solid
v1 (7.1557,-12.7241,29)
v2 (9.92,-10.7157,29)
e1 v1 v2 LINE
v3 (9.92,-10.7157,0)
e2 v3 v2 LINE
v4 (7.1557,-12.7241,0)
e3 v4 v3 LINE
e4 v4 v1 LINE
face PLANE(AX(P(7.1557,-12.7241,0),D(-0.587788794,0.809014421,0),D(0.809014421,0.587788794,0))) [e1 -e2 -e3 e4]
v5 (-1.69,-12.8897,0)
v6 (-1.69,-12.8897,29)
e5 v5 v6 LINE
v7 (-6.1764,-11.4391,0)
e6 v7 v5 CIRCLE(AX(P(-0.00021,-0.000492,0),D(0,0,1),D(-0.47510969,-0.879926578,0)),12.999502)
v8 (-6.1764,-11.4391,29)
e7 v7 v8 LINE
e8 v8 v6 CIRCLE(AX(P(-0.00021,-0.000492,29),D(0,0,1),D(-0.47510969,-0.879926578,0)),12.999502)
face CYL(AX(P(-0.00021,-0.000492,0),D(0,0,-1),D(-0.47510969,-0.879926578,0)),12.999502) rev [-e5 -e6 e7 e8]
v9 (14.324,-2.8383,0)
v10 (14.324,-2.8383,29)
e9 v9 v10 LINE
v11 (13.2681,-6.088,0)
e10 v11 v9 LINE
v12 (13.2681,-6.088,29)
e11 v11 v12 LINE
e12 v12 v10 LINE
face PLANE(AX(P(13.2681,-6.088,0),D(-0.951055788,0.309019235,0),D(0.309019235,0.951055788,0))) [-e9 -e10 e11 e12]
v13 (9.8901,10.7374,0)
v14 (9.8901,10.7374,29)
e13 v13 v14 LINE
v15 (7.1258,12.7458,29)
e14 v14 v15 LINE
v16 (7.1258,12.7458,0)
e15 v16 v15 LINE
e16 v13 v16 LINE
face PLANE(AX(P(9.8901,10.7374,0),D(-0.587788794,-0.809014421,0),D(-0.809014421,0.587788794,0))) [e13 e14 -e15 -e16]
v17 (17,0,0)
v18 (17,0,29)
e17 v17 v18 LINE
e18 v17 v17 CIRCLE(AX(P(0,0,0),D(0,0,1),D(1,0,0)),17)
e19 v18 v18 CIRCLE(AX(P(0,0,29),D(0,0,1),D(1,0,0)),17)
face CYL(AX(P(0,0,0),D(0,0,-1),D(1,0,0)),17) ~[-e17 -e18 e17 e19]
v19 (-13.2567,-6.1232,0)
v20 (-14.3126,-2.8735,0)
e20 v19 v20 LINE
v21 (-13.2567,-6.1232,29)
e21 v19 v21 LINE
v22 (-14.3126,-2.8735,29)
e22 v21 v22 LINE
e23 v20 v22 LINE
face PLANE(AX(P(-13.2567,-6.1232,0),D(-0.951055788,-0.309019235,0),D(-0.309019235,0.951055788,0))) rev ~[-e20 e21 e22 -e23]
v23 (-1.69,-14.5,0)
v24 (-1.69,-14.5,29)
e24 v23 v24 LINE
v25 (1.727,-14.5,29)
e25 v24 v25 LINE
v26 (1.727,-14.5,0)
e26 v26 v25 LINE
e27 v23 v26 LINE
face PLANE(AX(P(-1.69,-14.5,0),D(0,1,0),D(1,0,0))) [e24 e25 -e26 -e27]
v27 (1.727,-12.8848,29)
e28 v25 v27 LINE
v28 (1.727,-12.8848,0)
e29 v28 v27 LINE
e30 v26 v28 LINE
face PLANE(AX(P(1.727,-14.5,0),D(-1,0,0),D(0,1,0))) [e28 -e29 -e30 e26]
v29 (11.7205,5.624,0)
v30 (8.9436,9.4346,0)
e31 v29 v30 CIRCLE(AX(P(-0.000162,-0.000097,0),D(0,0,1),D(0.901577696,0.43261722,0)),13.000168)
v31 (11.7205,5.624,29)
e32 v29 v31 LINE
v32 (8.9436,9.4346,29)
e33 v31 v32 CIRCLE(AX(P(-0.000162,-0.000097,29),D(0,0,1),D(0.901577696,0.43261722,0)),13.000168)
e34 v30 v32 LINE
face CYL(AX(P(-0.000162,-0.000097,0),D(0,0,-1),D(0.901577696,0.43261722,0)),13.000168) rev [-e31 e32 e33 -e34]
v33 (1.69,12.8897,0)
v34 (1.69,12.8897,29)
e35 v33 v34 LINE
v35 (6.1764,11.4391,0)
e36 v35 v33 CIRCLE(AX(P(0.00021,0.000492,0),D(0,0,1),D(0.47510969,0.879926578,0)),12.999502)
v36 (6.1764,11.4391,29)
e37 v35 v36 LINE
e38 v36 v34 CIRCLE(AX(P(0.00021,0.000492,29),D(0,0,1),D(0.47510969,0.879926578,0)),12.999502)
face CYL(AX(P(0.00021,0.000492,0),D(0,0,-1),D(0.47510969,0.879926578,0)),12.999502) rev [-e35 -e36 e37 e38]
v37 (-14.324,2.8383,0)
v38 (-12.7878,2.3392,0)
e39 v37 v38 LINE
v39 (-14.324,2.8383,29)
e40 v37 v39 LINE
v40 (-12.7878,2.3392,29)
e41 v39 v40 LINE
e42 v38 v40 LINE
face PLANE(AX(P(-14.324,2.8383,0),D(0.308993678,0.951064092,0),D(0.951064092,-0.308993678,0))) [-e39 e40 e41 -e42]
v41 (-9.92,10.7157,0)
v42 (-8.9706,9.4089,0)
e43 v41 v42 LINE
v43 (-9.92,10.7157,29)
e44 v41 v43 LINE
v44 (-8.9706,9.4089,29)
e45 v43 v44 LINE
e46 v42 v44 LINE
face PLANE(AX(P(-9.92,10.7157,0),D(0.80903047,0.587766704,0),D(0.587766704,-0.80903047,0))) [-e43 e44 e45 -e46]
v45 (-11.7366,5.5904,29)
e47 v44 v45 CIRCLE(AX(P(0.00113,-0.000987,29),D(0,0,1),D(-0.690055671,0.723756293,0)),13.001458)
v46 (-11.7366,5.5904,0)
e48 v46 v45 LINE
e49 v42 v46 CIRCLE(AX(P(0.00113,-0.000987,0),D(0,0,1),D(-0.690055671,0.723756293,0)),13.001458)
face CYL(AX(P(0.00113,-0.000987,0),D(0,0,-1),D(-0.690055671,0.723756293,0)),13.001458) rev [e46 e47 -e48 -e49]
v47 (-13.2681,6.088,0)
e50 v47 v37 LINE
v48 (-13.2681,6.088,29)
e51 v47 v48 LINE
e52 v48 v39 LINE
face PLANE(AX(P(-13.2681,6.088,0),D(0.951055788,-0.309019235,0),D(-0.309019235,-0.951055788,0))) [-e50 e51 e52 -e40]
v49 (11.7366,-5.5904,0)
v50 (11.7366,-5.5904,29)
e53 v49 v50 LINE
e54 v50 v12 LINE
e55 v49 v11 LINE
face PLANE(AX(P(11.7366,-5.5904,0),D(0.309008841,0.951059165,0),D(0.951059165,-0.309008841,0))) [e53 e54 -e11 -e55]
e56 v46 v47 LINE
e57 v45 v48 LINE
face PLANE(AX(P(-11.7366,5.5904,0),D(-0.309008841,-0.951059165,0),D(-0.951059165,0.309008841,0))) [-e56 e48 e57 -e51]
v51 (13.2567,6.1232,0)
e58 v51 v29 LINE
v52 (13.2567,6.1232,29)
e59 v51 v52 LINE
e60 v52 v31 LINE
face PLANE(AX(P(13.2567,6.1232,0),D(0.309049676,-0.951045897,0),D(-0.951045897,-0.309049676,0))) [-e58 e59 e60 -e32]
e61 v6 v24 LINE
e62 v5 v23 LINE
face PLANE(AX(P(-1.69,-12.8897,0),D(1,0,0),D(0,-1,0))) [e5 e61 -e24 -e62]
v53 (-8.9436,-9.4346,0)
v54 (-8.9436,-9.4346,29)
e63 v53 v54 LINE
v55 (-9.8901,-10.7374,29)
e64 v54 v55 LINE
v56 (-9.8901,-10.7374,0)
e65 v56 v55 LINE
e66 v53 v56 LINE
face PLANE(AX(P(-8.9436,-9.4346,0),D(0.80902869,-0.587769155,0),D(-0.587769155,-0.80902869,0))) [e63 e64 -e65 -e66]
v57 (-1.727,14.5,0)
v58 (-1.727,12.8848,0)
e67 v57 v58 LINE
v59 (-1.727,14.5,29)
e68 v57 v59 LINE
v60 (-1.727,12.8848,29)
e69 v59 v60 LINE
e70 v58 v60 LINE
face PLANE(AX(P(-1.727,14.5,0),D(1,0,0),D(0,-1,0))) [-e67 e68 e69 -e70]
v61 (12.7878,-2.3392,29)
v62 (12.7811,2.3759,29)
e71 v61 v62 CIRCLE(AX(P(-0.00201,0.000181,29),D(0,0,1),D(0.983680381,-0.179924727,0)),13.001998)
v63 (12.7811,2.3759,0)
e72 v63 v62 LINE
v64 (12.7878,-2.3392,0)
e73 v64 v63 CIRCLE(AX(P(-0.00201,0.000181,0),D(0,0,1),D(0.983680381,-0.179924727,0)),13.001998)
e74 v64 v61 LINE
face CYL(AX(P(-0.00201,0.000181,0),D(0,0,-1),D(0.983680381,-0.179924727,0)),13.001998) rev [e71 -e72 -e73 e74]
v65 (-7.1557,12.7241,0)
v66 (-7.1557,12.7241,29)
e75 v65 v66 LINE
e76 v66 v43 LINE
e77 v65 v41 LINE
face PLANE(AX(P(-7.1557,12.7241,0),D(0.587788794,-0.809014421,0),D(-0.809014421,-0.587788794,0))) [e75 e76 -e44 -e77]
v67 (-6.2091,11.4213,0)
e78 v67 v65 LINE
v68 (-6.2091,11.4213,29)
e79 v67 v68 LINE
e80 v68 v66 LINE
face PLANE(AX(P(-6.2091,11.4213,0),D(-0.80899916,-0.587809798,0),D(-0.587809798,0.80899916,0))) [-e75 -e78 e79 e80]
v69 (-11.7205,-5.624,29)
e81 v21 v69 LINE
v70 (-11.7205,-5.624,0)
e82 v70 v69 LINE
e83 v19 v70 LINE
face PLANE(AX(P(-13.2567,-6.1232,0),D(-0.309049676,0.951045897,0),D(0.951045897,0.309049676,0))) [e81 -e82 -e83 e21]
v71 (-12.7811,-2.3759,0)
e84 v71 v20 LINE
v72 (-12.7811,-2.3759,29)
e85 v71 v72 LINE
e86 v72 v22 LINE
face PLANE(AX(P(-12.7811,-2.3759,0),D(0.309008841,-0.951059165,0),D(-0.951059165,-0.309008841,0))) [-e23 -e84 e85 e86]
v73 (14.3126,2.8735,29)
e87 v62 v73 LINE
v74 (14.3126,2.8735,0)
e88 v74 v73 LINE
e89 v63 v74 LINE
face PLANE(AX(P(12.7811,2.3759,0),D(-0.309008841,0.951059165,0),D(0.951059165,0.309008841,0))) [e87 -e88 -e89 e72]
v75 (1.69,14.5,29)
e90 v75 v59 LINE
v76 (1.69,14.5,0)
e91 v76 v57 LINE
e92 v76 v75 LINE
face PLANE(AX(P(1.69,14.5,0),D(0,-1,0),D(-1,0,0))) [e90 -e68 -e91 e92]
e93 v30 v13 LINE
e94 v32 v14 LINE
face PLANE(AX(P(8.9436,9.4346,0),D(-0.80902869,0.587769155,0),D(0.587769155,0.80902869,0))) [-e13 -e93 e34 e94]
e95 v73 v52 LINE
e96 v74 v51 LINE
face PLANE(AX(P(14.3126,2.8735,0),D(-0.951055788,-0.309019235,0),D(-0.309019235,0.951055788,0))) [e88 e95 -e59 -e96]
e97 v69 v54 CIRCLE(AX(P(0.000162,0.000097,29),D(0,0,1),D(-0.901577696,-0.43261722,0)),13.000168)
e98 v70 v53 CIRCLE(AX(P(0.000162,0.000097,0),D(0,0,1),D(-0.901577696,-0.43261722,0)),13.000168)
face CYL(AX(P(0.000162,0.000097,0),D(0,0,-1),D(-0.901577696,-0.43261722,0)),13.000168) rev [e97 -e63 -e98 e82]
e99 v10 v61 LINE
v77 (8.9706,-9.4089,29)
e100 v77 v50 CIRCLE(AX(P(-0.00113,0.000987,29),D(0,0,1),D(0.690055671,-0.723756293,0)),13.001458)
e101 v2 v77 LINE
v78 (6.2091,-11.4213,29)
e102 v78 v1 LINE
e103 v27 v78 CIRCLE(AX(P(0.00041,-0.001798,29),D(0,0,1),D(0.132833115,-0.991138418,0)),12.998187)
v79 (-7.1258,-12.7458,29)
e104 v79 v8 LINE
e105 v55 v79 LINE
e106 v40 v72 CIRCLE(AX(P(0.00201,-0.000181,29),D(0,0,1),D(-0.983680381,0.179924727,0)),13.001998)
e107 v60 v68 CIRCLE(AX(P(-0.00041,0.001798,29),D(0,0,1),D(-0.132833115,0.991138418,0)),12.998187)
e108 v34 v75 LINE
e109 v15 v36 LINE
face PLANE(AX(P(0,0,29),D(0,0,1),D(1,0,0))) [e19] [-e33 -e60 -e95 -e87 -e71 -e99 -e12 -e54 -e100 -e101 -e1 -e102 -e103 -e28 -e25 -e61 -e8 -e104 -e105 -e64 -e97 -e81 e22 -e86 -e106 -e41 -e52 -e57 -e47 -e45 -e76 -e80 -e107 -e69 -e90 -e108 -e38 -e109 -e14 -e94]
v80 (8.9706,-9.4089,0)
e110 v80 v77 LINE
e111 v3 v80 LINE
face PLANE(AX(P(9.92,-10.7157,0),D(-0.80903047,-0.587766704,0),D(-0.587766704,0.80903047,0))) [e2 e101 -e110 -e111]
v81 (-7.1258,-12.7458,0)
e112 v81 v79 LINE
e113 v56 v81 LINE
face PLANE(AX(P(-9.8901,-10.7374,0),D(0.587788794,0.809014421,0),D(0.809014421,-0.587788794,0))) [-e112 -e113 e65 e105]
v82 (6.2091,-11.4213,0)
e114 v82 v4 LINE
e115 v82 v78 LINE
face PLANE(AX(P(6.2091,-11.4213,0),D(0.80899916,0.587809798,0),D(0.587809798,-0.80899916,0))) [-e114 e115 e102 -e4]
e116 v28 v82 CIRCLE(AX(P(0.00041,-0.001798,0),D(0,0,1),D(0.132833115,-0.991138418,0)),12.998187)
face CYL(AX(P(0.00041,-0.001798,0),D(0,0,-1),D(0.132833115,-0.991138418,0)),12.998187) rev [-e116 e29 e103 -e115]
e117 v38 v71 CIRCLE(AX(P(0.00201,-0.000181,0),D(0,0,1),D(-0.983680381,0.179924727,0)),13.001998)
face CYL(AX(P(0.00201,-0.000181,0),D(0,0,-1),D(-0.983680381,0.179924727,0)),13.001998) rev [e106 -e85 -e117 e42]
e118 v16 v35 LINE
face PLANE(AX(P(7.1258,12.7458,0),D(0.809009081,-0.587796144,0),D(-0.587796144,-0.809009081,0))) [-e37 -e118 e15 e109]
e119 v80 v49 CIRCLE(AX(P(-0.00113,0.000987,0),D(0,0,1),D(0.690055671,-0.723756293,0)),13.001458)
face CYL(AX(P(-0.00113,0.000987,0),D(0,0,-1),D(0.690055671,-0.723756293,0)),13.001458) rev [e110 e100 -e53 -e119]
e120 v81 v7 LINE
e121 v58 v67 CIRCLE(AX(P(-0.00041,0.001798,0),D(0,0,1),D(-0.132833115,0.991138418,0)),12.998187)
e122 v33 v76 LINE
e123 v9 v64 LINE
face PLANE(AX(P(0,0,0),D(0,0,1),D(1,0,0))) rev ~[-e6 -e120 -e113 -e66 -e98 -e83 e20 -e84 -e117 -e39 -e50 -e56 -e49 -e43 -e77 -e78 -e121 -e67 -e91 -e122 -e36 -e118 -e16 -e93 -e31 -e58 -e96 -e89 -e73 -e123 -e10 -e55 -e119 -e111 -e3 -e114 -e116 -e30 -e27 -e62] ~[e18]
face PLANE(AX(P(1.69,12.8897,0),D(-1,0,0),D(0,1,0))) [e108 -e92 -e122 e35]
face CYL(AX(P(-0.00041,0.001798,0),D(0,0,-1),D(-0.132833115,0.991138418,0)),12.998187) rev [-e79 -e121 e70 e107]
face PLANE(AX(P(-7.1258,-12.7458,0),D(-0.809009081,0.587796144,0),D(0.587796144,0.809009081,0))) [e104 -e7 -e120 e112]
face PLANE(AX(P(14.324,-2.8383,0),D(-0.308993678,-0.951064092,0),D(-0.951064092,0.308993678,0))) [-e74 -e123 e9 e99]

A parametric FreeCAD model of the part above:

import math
import FreeCAD as App
import Part
import Sketcher

V = App.Vector
Q = App.Units.Quantity

doc = App.newDocument("Part")
body = doc.addObject("PartDesign::Body", "Body")

# Sketch on XY plane
sketch1 = body.newObject("Sketcher::SketchObject", "Sketch")
sketch1.AttachmentSupport = (doc.getObject("XY_Plane"), [""])
sketch1.MapMode = "FlatFace"
sketch1.addGeometry(Part.Circle(V(0, 0, 0), V(0, 0, 1), 17), False)
sketch1.addGeometry(Part.ArcOfCircle(Part.Circle(V(0.00201, -0.000181, 0), V(0, 0, 1), 13.001998), math.radians(169.634625), math.radians(190.528206)), False)
sketch1.addGeometry(Part.LineSegment(V(-12.7878, 2.3392, 0), V(-14.324, 2.8383, 0)), False)
sketch1.addGeometry(Part.LineSegment(V(-14.324, 2.8383, 0), V(-13.2681, 6.088, 0)), False)
sketch1.addGeometry(Part.LineSegment(V(-13.2681, 6.088, 0), V(-11.7366, 5.5904, 0)), False)
sketch1.addGeometry(Part.ArcOfCircle(Part.Circle(V(0.00113, -0.000987, 0), V(0, 0, 1), 13.001458), math.radians(133.634516), math.radians(154.528729)), False)
sketch1.addGeometry(Part.LineSegment(V(-8.9706, 9.4089, 0), V(-9.92, 10.7157, 0)), False)
sketch1.addGeometry(Part.LineSegment(V(-9.92, 10.7157, 0), V(-7.1557, 12.7241, 0)), False)
sketch1.addGeometry(Part.LineSegment(V(-7.1557, 12.7241, 0), V(-6.2091, 11.4213, 0)), False)
sketch1.addGeometry(Part.ArcOfCircle(Part.Circle(V(-0.00041, 0.001798, 0), V(0, 0, 1), 12.998187), math.radians(97.633338), math.radians(118.532563)), False)
sketch1.addGeometry(Part.LineSegment(V(-1.727, 12.8848, 0), V(-1.727, 14.5, 0)), False)
sketch1.addGeometry(Part.LineSegment(V(-1.727, 14.5, 0), V(1.69, 14.5, 0)), False)
sketch1.addGeometry(Part.LineSegment(V(1.69, 14.5, 0), V(1.69, 12.8897, 0)), False)
sketch1.addGeometry(Part.ArcOfCircle(Part.Circle(V(0, 0, 0), V(0, 0, 1), 12.999964), math.radians(61.633723), math.radians(82.530418)), False)
sketch1.addGeometry(Part.LineSegment(V(6.1764, 11.4391, 0), V(7.1258, 12.7458, 0)), False)
sketch1.addGeometry(Part.LineSegment(V(7.1258, 12.7458, 0), V(9.8901, 10.7374, 0)), False)
sketch1.addGeometry(Part.LineSegment(V(9.8901, 10.7374, 0), V(8.9436, 9.4346, 0)), False)
sketch1.addGeometry(Part.ArcOfCircle(Part.Circle(V(0, 0, 0), V(0, 0, 1), 13.000036), math.radians(25.633695), math.radians(46.530375)), False)
sketch1.addGeometry(Part.LineSegment(V(11.7205, 5.624, 0), V(13.2567, 6.1232, 0)), False)
sketch1.addGeometry(Part.LineSegment(V(13.2567, 6.1232, 0), V(14.3126, 2.8735, 0)), False)
sketch1.addGeometry(Part.LineSegment(V(14.3126, 2.8735, 0), V(12.7811, 2.3759, 0)), False)
sketch1.addGeometry(Part.ArcOfCircle(Part.Circle(V(-0.00201, 0.000181, 0), V(0, 0, 1), 13.001998), math.radians(-10.365375), math.radians(10.528206)), False)
sketch1.addGeometry(Part.LineSegment(V(12.7878, -2.3392, 0), V(14.324, -2.8383, 0)), False)
sketch1.addGeometry(Part.LineSegment(V(14.324, -2.8383, 0), V(13.2681, -6.088, 0)), False)
sketch1.addGeometry(Part.LineSegment(V(13.2681, -6.088, 0), V(11.7366, -5.5904, 0)), False)
sketch1.addGeometry(Part.ArcOfCircle(Part.Circle(V(-0.00113, 0.000987, 0), V(0, 0, 1), 13.001458), math.radians(-46.365484), math.radians(-25.471271)), False)
sketch1.addGeometry(Part.LineSegment(V(8.9706, -9.4089, 0), V(9.92, -10.7157, 0)), False)
sketch1.addGeometry(Part.LineSegment(V(9.92, -10.7157, 0), V(7.1557, -12.7241, 0)), False)
sketch1.addGeometry(Part.LineSegment(V(7.1557, -12.7241, 0), V(6.2091, -11.4213, 0)), False)
sketch1.addGeometry(Part.ArcOfCircle(Part.Circle(V(0.00041, -0.001798, 0), V(0, 0, 1), 12.998187), math.radians(-82.366662), math.radians(-61.467437)), False)
sketch1.addGeometry(Part.LineSegment(V(1.727, -12.8848, 0), V(1.727, -14.5, 0)), False)
sketch1.addGeometry(Part.LineSegment(V(1.727, -14.5, 0), V(-1.69, -14.5, 0)), False)
sketch1.addGeometry(Part.LineSegment(V(-1.69, -14.5, 0), V(-1.69, -12.8897, 0)), False)
sketch1.addGeometry(Part.ArcOfCircle(Part.Circle(V(0, 0, 0), V(0, 0, 1), 12.999964), math.radians(-118.366277), math.radians(-97.469582)), False)
sketch1.addGeometry(Part.LineSegment(V(-6.1764, -11.4391, 0), V(-7.1258, -12.7458, 0)), False)
sketch1.addGeometry(Part.LineSegment(V(-7.1258, -12.7458, 0), V(-9.8901, -10.7374, 0)), False)
sketch1.addGeometry(Part.LineSegment(V(-9.8901, -10.7374, 0), V(-8.9436, -9.4346, 0)), False)
sketch1.addGeometry(Part.ArcOfCircle(Part.Circle(V(0, 0, 0), V(0, 0, 1), 13.000036), math.radians(-154.366305), math.radians(-133.469625)), False)
sketch1.addGeometry(Part.LineSegment(V(-11.7205, -5.624, 0), V(-13.2567, -6.1232, 0)), False)
sketch1.addGeometry(Part.LineSegment(V(-13.2567, -6.1232, 0), V(-14.3126, -2.8735, 0)), False)
sketch1.addGeometry(Part.LineSegment(V(-14.3126, -2.8735, 0), V(-12.7811, -2.3759, 0)), False)
sketch1.addConstraint(Sketcher.Constraint("Coincident", 1, 1, 2, 1))
sketch1.addConstraint(Sketcher.Constraint("Coincident", 2, 2, 3, 1))
sketch1.addConstraint(Sketcher.Constraint("Coincident", 3, 2, 4, 1))
sketch1.addConstraint(Sketcher.Constraint("Coincident", 4, 2, 5, 2))
sketch1.addConstraint(Sketcher.Constraint("Coincident", 5, 1, 6, 1))
sketch1.addConstraint(Sketcher.Constraint("Coincident", 6, 2, 7, 1))
sketch1.addConstraint(Sketcher.Constraint("Coincident", 7, 2, 8, 1))
sketch1.addConstraint(Sketcher.Constraint("Coincident", 8, 2, 9, 2))
sketch1.addConstraint(Sketcher.Constraint("Coincident", 9, 1, 10, 1))
sketch1.addConstraint(Sketcher.Constraint("Coincident", 10, 2, 11, 1))
sketch1.addConstraint(Sketcher.Constraint("Coincident", 11, 2, 12, 1))
sketch1.addConstraint(Sketcher.Constraint("Coincident", 12, 2, 13, 2))
sketch1.addConstraint(Sketcher.Constraint("Coincident", 13, 1, 14, 1))
sketch1.addConstraint(Sketcher.Constraint("Coincident", 14, 2, 15, 1))
sketch1.addConstraint(Sketcher.Constraint("Coincident", 15, 2, 16, 1))
sketch1.addConstraint(Sketcher.Constraint("Coincident", 16, 2, 17, 2))
sketch1.addConstraint(Sketcher.Constraint("Coincident", 17, 1, 18, 1))
sketch1.addConstraint(Sketcher.Constraint("Coincident", 18, 2, 19, 1))
sketch1.addConstraint(Sketcher.Constraint("Coincident", 19, 2, 20, 1))
sketch1.addConstraint(Sketcher.Constraint("Coincident", 20, 2, 21, 2))
sketch1.addConstraint(Sketcher.Constraint("Coincident", 21, 1, 22, 1))
sketch1.addConstraint(Sketcher.Constraint("Coincident", 22, 2, 23, 1))
sketch1.addConstraint(Sketcher.Constraint("Coincident", 23, 2, 24, 1))
sketch1.addConstraint(Sketcher.Constraint("Coincident", 24, 2, 25, 2))
sketch1.addConstraint(Sketcher.Constraint("Coincident", 25, 1, 26, 1))
sketch1.addConstraint(Sketcher.Constraint("Coincident", 26, 2, 27, 1))
sketch1.addConstraint(Sketcher.Constraint("Coincident", 27, 2, 28, 1))
sketch1.addConstraint(Sketcher.Constraint("Coincident", 28, 2, 29, 2))
sketch1.addConstraint(Sketcher.Constraint("Coincident", 29, 1, 30, 1))
sketch1.addConstraint(Sketcher.Constraint("Coincident", 30, 2, 31, 1))
sketch1.addConstraint(Sketcher.Constraint("Coincident", 31, 2, 32, 1))
sketch1.addConstraint(Sketcher.Constraint("Coincident", 32, 2, 33, 2))
sketch1.addConstraint(Sketcher.Constraint("Coincident", 33, 1, 34, 1))
sketch1.addConstraint(Sketcher.Constraint("Coincident", 34, 2, 35, 1))
sketch1.addConstraint(Sketcher.Constraint("Coincident", 35, 2, 36, 1))
sketch1.addConstraint(Sketcher.Constraint("Coincident", 36, 2, 37, 2))
sketch1.addConstraint(Sketcher.Constraint("Coincident", 37, 1, 38, 1))
sketch1.addConstraint(Sketcher.Constraint("Coincident", 38, 2, 39, 1))
sketch1.addConstraint(Sketcher.Constraint("Coincident", 39, 2, 40, 1))
sketch1.addConstraint(Sketcher.Constraint("Coincident", 40, 2, 1, 2))
sketch1.addConstraint(Sketcher.Constraint("Vertical", 10))
sketch1.addConstraint(Sketcher.Constraint("Horizontal", 11))
sketch1.addConstraint(Sketcher.Constraint("Vertical", 12))
sketch1.addConstraint(Sketcher.Constraint("Vertical", 30))
sketch1.addConstraint(Sketcher.Constraint("Horizontal", 31))
sketch1.addConstraint(Sketcher.Constraint("Vertical", 32))
sketch1.addConstraint(Sketcher.Constraint("Coincident", 0, 3, -1, 1))
sketch1.addConstraint(Sketcher.Constraint("Coincident", 13, 3, -1, 1))
sketch1.addConstraint(Sketcher.Constraint("Coincident", 17, 3, -1, 1))
sketch1.addConstraint(Sketcher.Constraint("Coincident", 33, 3, -1, 1))
sketch1.addConstraint(Sketcher.Constraint("Coincident", 37, 3, -1, 1))
sketch1.addConstraint(Sketcher.Constraint("Equal", 13, 17))
sketch1.addConstraint(Sketcher.Constraint("Equal", 1, 21))
sketch1.addConstraint(Sketcher.Constraint("Equal", 5, 25))
sketch1.addConstraint(Sketcher.Constraint("Equal", 9, 29))
sketch1.addConstraint(Sketcher.Constraint("Equal", 17, 33))
sketch1.addConstraint(Sketcher.Constraint("Equal", 33, 37))
sketch1.addConstraint(Sketcher.Constraint("Symmetric", 1, 3, 21, 3, -1, 1))
sketch1.addConstraint(Sketcher.Constraint("Symmetric", 5, 3, 25, 3, -1, 1))
sketch1.addConstraint(Sketcher.Constraint("Symmetric", 9, 3, 29, 3, -1, 1))
sketch1.addConstraint(Sketcher.Constraint("Symmetric", 2, 2, 22, 2, -1, 1))
sketch1.addConstraint(Sketcher.Constraint("Symmetric", 3, 2, 23, 2, -1, 1))
sketch1.addConstraint(Sketcher.Constraint("Symmetric", 6, 2, 26, 2, -1, 1))
sketch1.addConstraint(Sketcher.Constraint("Symmetric", 7, 2, 27, 2, -1, 1))
sketch1.addConstraint(Sketcher.Constraint("Symmetric", 10, 2, 30, 2, -1, 1))
sketch1.addConstraint(Sketcher.Constraint("Symmetric", 14, 2, 34, 2, -1, 1))
sketch1.addConstraint(Sketcher.Constraint("Symmetric", 15, 2, 35, 2, -1, 1))
sketch1.addConstraint(Sketcher.Constraint("Symmetric", 18, 2, 38, 2, -1, 1))
sketch1.addConstraint(Sketcher.Constraint("Symmetric", 19, 2, 39, 2, -1, 1))
sketch1.addConstraint(Sketcher.Constraint("PointOnObject", 1, 3, -1))
sketch1.addConstraint(Sketcher.Constraint("Perpendicular", 2, 3))
sketch1.addConstraint(Sketcher.Constraint("Perpendicular", 3, 4))
sketch1.addConstraint(Sketcher.Constraint("Perpendicular", 6, 7))
sketch1.addConstraint(Sketcher.Constraint("Perpendicular", 7, 8))
sketch1.addConstraint(Sketcher.Constraint("Perpendicular", 14, 15))
sketch1.addConstraint(Sketcher.Constraint("Perpendicular", 15, 16))
sketch1.addConstraint(Sketcher.Constraint("Perpendicular", 18, 19))
sketch1.addConstraint(Sketcher.Constraint("Perpendicular", 19, 20))
sketch1.addConstraint(Sketcher.Constraint("Parallel", 4, 22))
sketch1.addConstraint(Sketcher.Constraint("Perpendicular", 23, 24))
sketch1.addConstraint(Sketcher.Constraint("Parallel", 8, 26))
sketch1.addConstraint(Sketcher.Constraint("Perpendicular", 27, 28))
sketch1.addConstraint(Sketcher.Constraint("Parallel", 16, 34))
sketch1.addConstraint(Sketcher.Constraint("Perpendicular", 35, 36))
sketch1.addConstraint(Sketcher.Constraint("Parallel", 20, 38))
sketch1.addConstraint(Sketcher.Constraint("Perpendicular", 39, 40))
sketch1.addConstraint(Sketcher.Constraint("Equal", 11, 31))
sketch1.addConstraint(Sketcher.Constraint("Equal", 2, 6))
sketch1.addConstraint(Sketcher.Constraint("Equal", 3, 7))
sketch1.addConstraint(Sketcher.Constraint("Equal", 4, 8))
sketch1.addConstraint(Sketcher.Constraint("Equal", 6, 14))
sketch1.addConstraint(Sketcher.Constraint("Equal", 7, 15))
sketch1.addConstraint(Sketcher.Constraint("Equal", 8, 16))
sketch1.addConstraint(Sketcher.Constraint("Equal", 14, 18))
sketch1.addConstraint(Sketcher.Constraint("Equal", 15, 19))
sketch1.addConstraint(Sketcher.Constraint("Equal", 16, 20))
sketch1.addConstraint(Sketcher.Constraint("Diameter", 0, 34.0))
sketch1.addConstraint(Sketcher.Constraint("Radius", 13, 13.0))
sketch1.addConstraint(Sketcher.Constraint("Angle", 3, Q("71.9999 deg")))
sketch1.addConstraint(Sketcher.Constraint("Angle", 7, Q("36.0003 deg")))
sketch1.addConstraint(Sketcher.Constraint("Angle", 14, Q("53.9992 deg")))
sketch1.addConstraint(Sketcher.Constraint("Angle", 19, Q("-71.9999 deg")))
sketch1.addConstraint(Sketcher.Constraint("Radius", 1, 13.002))
sketch1.addConstraint(Sketcher.Constraint("DistanceY", -1, 1, 10, 2, 14.5))
sketch1.addConstraint(Sketcher.Constraint("Radius", 5, 13.0015))
sketch1.addConstraint(Sketcher.Constraint("Radius", 9, 12.9982))
sketch1.addConstraint(Sketcher.Constraint("DistanceX", 12, 2, 15, 2, 8.2))
sketch1.addConstraint(Sketcher.Constraint("DistanceX", 11, 1, 11, 2, 3.417))
sketch1.addConstraint(Sketcher.Constraint("DistanceX", 6, 2, -1, 1, 9.92))
sketch1.addConstraint(Sketcher.Constraint("DistanceX", -1, 1, 11, 2, 1.69))
sketch1.addConstraint(Sketcher.Constraint("Distance", 3, 3.417))
sketch1.addConstraint(Sketcher.Constraint("DistanceY", 10, 1, 10, 2, 1.6152))
sketch1.addConstraint(Sketcher.Constraint("DistanceX", -1, 1, 1, 3, 0.002))
sketch1.addConstraint(Sketcher.Constraint("DistanceY", 5, 3, -1, 1, 0.001))
sketch1.addConstraint(Sketcher.Constraint("DistanceX", 2, 2, -1, 1, 14.324))
sketch1.addConstraint(Sketcher.Constraint("DistanceY", -1, 1, 3, 2, 6.088))
pad1 = body.newObject("PartDesign::Pad", "Pad")
pad1.Profile = sketch1
pad1.Length = 29

doc.recompute()
